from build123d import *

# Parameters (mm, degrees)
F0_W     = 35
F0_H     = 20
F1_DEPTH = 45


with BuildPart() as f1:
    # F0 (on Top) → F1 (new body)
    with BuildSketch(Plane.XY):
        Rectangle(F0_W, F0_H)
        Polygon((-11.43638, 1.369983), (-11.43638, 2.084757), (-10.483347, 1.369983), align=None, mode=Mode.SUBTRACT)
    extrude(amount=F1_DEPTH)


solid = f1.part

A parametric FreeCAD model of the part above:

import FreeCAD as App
import Part
import Sketcher


def add_polygon(sketch, points):
    """Adds a closed chain of lines whose ends are joined by coincident constraints."""
    first, n = sketch.GeometryCount, len(points)
    for a, b in zip(points, points[1:] + points[:1]):
        sketch.addGeometry(Part.LineSegment(App.Vector(*a, 0), App.Vector(*b, 0)), False)
    for i in range(n):
        sketch.addConstraint(Sketcher.Constraint("Coincident", first + i, 2, first + (i + 1) % n, 1))

doc = App.newDocument("Part")
body = doc.addObject("PartDesign::Body", "Body")

sketch1 = body.newObject("Sketcher::SketchObject", "Sketch")
sketch1.AttachmentSupport = (doc.getObject("XY_Plane"), [""])
sketch1.MapMode = "FlatFace"
add_polygon(sketch1, [(-17.5, 10), (-17.5, -10), (17.5, -10), (17.5, 10)])
add_polygon(sketch1, [(-10.5, 1.4), (-11.4, 1.4), (-11.4, 2.1)])
sketch1.addConstraint(Sketcher.Constraint("Vertical", 0))
sketch1.addConstraint(Sketcher.Constraint("Horizontal", 1))
sketch1.addConstraint(Sketcher.Constraint("Vertical", 2))
sketch1.addConstraint(Sketcher.Constraint("Horizontal", 3))
sketch1.addConstraint(Sketcher.Constraint("Horizontal", 4))
sketch1.addConstraint(Sketcher.Constraint("Vertical", 5))
sketch1.addConstraint(Sketcher.Constraint("Symmetric", 0, 2, 2, 2, -1, 1))
sketch1.addConstraint(Sketcher.Constraint("DistanceX", 1, 1, 1, 2, 35.0))
sketch1.addConstraint(Sketcher.Constraint("DistanceY", 0, 2, 0, 1, 20.0))
sketch1.addConstraint(Sketcher.Constraint("Distance", 6, 1.191291))
sketch1.addConstraint(Sketcher.Constraint("DistanceX", 4, 2, 4, 1, 0.953033))
sketch1.addConstraint(Sketcher.Constraint("DistanceX", 4, 2, -1, 1, 11.43638))
sketch1.addConstraint(Sketcher.Constraint("DistanceY", -1, 1, 4, 2, 1.369983))
pad1 = body.newObject("PartDesign::Pad", "Pad")
pad1.Profile = sketch1
pad1.Length = 45

doc.recompute()
